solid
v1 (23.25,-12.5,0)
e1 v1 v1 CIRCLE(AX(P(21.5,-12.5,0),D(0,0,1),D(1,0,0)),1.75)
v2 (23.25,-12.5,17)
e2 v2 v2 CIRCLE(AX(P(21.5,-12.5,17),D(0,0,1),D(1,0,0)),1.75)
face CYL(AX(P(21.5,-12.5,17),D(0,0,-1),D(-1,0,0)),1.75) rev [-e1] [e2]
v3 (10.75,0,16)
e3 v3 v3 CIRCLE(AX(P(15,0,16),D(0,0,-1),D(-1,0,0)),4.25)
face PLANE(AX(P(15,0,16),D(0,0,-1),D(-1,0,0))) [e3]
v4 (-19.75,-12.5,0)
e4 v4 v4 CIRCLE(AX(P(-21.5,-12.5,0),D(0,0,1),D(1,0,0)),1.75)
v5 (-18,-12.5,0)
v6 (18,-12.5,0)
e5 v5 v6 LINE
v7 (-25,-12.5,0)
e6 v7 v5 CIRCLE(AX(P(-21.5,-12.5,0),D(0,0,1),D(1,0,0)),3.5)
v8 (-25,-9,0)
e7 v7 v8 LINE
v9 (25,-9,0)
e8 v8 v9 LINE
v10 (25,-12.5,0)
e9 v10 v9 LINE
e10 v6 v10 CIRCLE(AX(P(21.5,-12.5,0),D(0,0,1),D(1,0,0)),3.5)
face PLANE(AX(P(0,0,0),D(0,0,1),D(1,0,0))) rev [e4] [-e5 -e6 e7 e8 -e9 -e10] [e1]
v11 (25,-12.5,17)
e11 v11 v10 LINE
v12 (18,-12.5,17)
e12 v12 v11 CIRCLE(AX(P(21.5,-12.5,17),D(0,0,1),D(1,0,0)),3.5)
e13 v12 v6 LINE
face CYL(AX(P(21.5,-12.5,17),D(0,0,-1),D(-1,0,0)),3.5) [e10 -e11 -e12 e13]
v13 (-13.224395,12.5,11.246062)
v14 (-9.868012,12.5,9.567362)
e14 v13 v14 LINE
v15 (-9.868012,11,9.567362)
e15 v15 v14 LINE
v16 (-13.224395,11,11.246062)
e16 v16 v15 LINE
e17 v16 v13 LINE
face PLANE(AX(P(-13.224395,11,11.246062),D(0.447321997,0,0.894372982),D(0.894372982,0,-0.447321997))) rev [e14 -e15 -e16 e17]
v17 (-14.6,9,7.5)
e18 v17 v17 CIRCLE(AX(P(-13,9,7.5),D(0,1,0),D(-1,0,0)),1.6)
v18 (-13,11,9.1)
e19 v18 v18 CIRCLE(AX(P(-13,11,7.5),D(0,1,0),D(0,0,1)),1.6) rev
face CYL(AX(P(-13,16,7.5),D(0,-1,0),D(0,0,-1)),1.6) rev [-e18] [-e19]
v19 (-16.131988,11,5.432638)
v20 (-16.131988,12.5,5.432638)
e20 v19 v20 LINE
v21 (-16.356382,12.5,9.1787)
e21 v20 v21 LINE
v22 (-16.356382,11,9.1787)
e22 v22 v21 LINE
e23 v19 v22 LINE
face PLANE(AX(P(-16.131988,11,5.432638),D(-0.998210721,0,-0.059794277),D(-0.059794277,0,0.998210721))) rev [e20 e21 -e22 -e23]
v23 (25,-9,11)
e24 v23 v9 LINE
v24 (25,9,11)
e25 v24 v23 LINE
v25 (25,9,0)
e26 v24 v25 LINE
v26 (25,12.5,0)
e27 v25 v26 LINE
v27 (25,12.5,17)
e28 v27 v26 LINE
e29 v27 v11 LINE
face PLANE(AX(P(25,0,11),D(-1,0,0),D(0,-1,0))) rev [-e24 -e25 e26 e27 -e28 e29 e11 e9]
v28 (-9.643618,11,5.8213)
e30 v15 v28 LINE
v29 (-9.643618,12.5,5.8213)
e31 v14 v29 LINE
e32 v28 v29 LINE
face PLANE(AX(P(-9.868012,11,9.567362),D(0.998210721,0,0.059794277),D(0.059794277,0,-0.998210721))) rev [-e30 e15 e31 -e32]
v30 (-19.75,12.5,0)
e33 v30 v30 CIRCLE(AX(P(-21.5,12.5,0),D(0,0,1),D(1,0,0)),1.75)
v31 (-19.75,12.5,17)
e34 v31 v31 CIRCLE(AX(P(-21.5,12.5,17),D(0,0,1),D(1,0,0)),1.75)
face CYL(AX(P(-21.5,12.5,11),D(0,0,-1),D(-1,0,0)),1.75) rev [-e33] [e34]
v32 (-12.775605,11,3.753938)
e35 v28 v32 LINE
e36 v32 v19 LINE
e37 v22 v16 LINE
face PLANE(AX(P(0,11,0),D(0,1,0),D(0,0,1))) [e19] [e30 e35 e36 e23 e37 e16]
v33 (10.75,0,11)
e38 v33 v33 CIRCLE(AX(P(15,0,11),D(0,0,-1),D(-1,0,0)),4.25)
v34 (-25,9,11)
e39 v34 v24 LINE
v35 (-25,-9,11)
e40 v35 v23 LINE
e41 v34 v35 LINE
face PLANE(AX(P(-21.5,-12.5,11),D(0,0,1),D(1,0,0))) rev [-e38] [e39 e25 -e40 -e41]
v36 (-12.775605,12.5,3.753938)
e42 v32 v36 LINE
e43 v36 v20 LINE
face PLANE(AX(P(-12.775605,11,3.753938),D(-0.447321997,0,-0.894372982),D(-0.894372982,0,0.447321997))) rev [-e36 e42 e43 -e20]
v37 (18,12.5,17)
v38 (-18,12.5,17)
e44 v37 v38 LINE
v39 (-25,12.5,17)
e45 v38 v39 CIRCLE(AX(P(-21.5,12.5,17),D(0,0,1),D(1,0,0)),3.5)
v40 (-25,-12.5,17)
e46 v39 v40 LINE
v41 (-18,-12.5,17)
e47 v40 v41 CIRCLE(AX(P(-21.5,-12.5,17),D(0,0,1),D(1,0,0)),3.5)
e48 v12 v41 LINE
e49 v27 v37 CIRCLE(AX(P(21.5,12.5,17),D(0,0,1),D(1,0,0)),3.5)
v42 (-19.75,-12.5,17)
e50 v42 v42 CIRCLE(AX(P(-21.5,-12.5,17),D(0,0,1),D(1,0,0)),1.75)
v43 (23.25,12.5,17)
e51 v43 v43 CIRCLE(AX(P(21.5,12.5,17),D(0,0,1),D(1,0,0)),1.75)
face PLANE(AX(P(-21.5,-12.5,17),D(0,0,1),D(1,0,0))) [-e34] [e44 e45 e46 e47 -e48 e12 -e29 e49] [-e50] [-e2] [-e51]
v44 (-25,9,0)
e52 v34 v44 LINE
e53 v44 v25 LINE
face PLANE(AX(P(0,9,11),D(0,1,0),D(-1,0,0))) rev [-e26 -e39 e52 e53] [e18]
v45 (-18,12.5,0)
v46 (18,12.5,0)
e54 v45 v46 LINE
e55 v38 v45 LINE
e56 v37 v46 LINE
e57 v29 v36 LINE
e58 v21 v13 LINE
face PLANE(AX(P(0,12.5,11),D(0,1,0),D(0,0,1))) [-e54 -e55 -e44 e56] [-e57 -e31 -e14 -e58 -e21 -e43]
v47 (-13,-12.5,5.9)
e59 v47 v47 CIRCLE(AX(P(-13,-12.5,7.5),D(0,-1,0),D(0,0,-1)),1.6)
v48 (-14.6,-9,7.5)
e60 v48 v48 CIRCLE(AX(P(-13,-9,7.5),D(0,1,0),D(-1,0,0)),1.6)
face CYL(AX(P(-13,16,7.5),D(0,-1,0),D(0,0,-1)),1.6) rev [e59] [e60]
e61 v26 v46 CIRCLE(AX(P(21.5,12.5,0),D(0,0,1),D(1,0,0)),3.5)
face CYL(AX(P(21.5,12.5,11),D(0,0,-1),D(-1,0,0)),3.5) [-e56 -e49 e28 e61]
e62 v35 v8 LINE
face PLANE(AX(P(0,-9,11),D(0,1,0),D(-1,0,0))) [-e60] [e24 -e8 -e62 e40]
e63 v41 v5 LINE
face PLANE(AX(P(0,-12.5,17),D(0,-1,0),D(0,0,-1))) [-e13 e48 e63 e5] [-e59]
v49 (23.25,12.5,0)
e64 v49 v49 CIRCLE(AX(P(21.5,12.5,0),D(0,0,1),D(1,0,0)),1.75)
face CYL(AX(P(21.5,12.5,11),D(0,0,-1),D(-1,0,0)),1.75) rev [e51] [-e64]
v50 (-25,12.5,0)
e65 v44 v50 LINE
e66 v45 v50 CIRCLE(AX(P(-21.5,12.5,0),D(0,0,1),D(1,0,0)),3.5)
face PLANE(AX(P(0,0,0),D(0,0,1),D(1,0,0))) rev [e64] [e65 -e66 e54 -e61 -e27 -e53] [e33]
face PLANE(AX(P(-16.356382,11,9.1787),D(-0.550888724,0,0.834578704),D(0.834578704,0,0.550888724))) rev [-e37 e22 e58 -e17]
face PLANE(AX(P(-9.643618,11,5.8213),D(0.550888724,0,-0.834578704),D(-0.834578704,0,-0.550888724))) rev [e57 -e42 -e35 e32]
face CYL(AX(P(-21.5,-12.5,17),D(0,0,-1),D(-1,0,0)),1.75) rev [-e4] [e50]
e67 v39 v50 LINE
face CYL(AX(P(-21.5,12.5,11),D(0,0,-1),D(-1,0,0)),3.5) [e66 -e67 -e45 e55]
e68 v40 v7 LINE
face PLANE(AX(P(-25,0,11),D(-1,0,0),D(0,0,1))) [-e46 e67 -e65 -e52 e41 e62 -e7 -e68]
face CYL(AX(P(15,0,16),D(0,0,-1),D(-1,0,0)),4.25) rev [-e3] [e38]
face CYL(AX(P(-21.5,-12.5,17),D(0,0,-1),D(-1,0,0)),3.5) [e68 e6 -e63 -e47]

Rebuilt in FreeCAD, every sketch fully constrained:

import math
import FreeCAD as App
import Part
import Sketcher

V = App.Vector
Q = App.Units.Quantity


def add_polygon(sketch, points):
    """Adds a closed chain of lines whose ends are joined by coincident constraints."""
    first, n = sketch.GeometryCount, len(points)
    for a, b in zip(points, points[1:] + points[:1]):
        sketch.addGeometry(Part.LineSegment(App.Vector(*a, 0), App.Vector(*b, 0)), False)
    for i in range(n):
        sketch.addConstraint(Sketcher.Constraint("Coincident", first + i, 2, first + (i + 1) % n, 1))

doc = App.newDocument("Part")
params = doc.addObject("Spreadsheet::Sheet", "Params")
for row, (alias, value) in enumerate([
    ("sketch1_diameter", "3.5 mm"),
    ("sketch1_radius", "3.5 mm"),
    ("sketch1_width", "36 mm"),
    ("sketch1_height", "3.5 mm"),
    ("pad1_length", "11 mm"),
    ("sketch2_diameter", "3.5 mm"),
    ("sketch2_radius", "3.5 mm"),
    ("sketch2_width", "50 mm"),
    ("sketch2_height", "3.5 mm"),
    ("pad2_length", "11 mm"),
    ("sketch3_diameter", "3.5 mm"),
    ("sketch3_radius", "3.5 mm"),
    ("sketch3_width", "36 mm"),
    ("sketch3_height", "25 mm"),
    ("pad3_length", "6 mm"),
    ("sketch4_diameter", "8.5 mm"),
    ("pocket1_length", "5 mm"),
    ("sketch5_diameter", "3.2 mm"),
    ("pocket3_length", "1.5 mm"),
], start=1):
    params.set(f"A{row}", alias)
    params.set(f"B{row}", "=" + value)
    params.setAlias(f"B{row}", alias)

body = doc.addObject("PartDesign::Body", "Body")

# Sketch on XY plane
sketch1 = body.newObject("Sketcher::SketchObject", "Sketch")
sketch1.AttachmentSupport = (doc.getObject("XY_Plane"), [""])
sketch1.MapMode = "FlatFace"
sketch1.addGeometry([
    Part.LineSegment(V(18, 12.5, 0), V(-18, 12.5, 0)),  # 0
    Part.ArcOfCircle(Part.Circle(V(-21.5, 12.5, 0), V(0, 0, 1), 3.5), math.radians(0), math.radians(180)),  # 1
    Part.LineSegment(V(-25, 12.5, 0), V(-25, 9, 0)),  # 2
    Part.LineSegment(V(-25, 9, 0), V(25, 9, 0)),  # 3
    Part.LineSegment(V(25, 9, 0), V(25, 12.5, 0)),  # 4
    Part.ArcOfCircle(Part.Circle(V(21.5, 12.5, 0), V(0, 0, 1), 3.5), math.radians(0), math.radians(180)),  # 5
    Part.Circle(V(-21.5, 12.5, 0), V(0, 0, 1), 1.8),  # 6
    Part.Circle(V(21.5, 12.5, 0), V(0, 0, 1), 1.8),  # 7
], False)
sketch1.addConstraint([
    Sketcher.Constraint("Coincident", 0, 2, 1, 1),
    Sketcher.Constraint("Tangent", 1, 2, 2, 1),
    Sketcher.Constraint("Coincident", 2, 2, 3, 1),
    Sketcher.Constraint("Coincident", 3, 2, 4, 1),
    Sketcher.Constraint("Tangent", 4, 2, 5, 1),
    Sketcher.Constraint("Coincident", 5, 2, 0, 1),
    Sketcher.Constraint("Horizontal", 0),
    Sketcher.Constraint("Vertical", 2),
    Sketcher.Constraint("Horizontal", 3),
    Sketcher.Constraint("Vertical", 4),
    Sketcher.Constraint("Coincident", 6, 3, 1, 3),
    Sketcher.Constraint("Coincident", 7, 3, 5, 3),
    Sketcher.Constraint("Equal", 1, 5),
    Sketcher.Constraint("Equal", 6, 7),
    Sketcher.Constraint("Symmetric", 1, 3, 5, 3, -2),
    Sketcher.Constraint("Horizontal", 7, 3, 0, 2),
    Sketcher.Constraint("Diameter", 6, Q("3.5 mm")),
    Sketcher.Constraint("Radius", 1, Q("3.5 mm")),
    Sketcher.Constraint("DistanceX", 0, 2, 0, 1, Q("36 mm")),
    Sketcher.Constraint("DistanceY", 2, 2, 2, 1, Q("3.5 mm")),
    Sketcher.Constraint("DistanceY", -1, 1, 2, 2, Q("9 mm")),
])
sketch1.setExpression("Constraints[16]", "Params.sketch1_diameter")
sketch1.setExpression("Constraints[17]", "Params.sketch1_radius")
sketch1.setExpression("Constraints[18]", "Params.sketch1_width")
sketch1.setExpression("Constraints[19]", "Params.sketch1_height")
pad1 = body.newObject("PartDesign::Pad", "Pad")
pad1.Profile = sketch1
pad1.setExpression("Length", "Params.pad1_length")
body2 = doc.addObject("PartDesign::Body", "Body001")

# Sketch on XY plane
sketch2 = body2.newObject("Sketcher::SketchObject", "Sketch001")
sketch2.AttachmentSupport = (doc.getObject("XY_Plane001"), [""])
sketch2.MapMode = "FlatFace"
sketch2.addGeometry([
    Part.LineSegment(V(25, -9, 0), V(-25, -9, 0)),  # 0
    Part.LineSegment(V(-25, -9, 0), V(-25, -12.5, 0)),  # 1
    Part.ArcOfCircle(Part.Circle(V(-21.5, -12.5, 0), V(0, 0, 1), 3.5), math.radians(180), math.radians(360)),  # 2
    Part.LineSegment(V(-18, -12.5, 0), V(18, -12.5, 0)),  # 3
    Part.ArcOfCircle(Part.Circle(V(21.5, -12.5, 0), V(0, 0, 1), 3.5), math.radians(180), math.radians(360)),  # 4
    Part.LineSegment(V(25, -12.5, 0), V(25, -9, 0)),  # 5
    Part.Circle(V(-21.5, -12.5, 0), V(0, 0, 1), 1.8),  # 6
    Part.Circle(V(21.5, -12.5, 0), V(0, 0, 1), 1.8),  # 7
], False)
sketch2.addConstraint([
    Sketcher.Constraint("Coincident", 0, 2, 1, 1),
    Sketcher.Constraint("Tangent", 1, 2, 2, 1),
    Sketcher.Constraint("Coincident", 2, 2, 3, 1),
    Sketcher.Constraint("Coincident", 3, 2, 4, 1),
    Sketcher.Constraint("Tangent", 4, 2, 5, 1),
    Sketcher.Constraint("Coincident", 5, 2, 0, 1),
    Sketcher.Constraint("Horizontal", 0),
    Sketcher.Constraint("Vertical", 1),
    Sketcher.Constraint("Horizontal", 3),
    Sketcher.Constraint("Vertical", 5),
    Sketcher.Constraint("Coincident", 6, 3, 2, 3),
    Sketcher.Constraint("Coincident", 7, 3, 4, 3),
    Sketcher.Constraint("Equal", 2, 4),
    Sketcher.Constraint("Equal", 6, 7),
    Sketcher.Constraint("Symmetric", 2, 3, 4, 3, -2),
    Sketcher.Constraint("Horizontal", 1, 2, 2, 2),
    Sketcher.Constraint("Diameter", 6, Q("3.5 mm")),
    Sketcher.Constraint("Radius", 2, Q("3.5 mm")),
    Sketcher.Constraint("DistanceX", 0, 2, 0, 1, Q("50 mm")),
    Sketcher.Constraint("DistanceY", 1, 2, 1, 1, Q("3.5 mm")),
    Sketcher.Constraint("DistanceY", 0, 2, -1, 1, Q("9 mm")),
])
sketch2.setExpression("Constraints[16]", "Params.sketch2_diameter")
sketch2.setExpression("Constraints[17]", "Params.sketch2_radius")
sketch2.setExpression("Constraints[18]", "Params.sketch2_width")
sketch2.setExpression("Constraints[19]", "Params.sketch2_height")
pad2 = body2.newObject("PartDesign::Pad", "Pad001")
pad2.Profile = sketch2
pad2.setExpression("Length", "Params.pad2_length")
body.AllowCompound = True
doc.recompute()

boolean = body.newObject("PartDesign::Boolean", "Boolean")
boolean.Type = "Fuse"
boolean.addObjects([body2])

# Sketch on XY plane
sketch3 = body.newObject("Sketcher::SketchObject", "Sketch002")
sketch3.AttachmentSupport = (doc.getObject("XY_Plane"), [""])
sketch3.MapMode = "FlatFace"
sketch3.AttachmentOffset = App.Placement(V(0, 0, 11), App.Rotation())
sketch3.addGeometry([
    Part.ArcOfCircle(Part.Circle(V(-21.5, -12.5, 0), V(0, 0, 1), 3.5), math.radians(180), math.radians(360)),  # 0
    Part.LineSegment(V(-18, -12.5, 0), V(18, -12.5, 0)),  # 1
    Part.ArcOfCircle(Part.Circle(V(21.5, -12.5, 0), V(0, 0, 1), 3.5), math.radians(180), math.radians(360)),  # 2
    Part.LineSegment(V(25, -12.5, 0), V(25, 12.5, 0)),  # 3
    Part.ArcOfCircle(Part.Circle(V(21.5, 12.5, 0), V(0, 0, 1), 3.5), math.radians(0), math.radians(180)),  # 4
    Part.LineSegment(V(18, 12.5, 0), V(-18, 12.5, 0)),  # 5
    Part.ArcOfCircle(Part.Circle(V(-21.5, 12.5, 0), V(0, 0, 1), 3.5), math.radians(0), math.radians(180)),  # 6
    Part.LineSegment(V(-25, 12.5, 0), V(-25, -12.5, 0)),  # 7
    Part.Circle(V(21.5, -12.5, 0), V(0, 0, 1), 1.8),  # 8
    Part.Circle(V(-21.5, -12.5, 0), V(0, 0, 1), 1.8),  # 9
    Part.Circle(V(21.5, 12.5, 0), V(0, 0, 1), 1.8),  # 10
    Part.Circle(V(-21.5, 12.5, 0), V(0, 0, 1), 1.8),  # 11
], False)
sketch3.addConstraint([
    Sketcher.Constraint("Coincident", 0, 2, 1, 1),
    Sketcher.Constraint("Coincident", 1, 2, 2, 1),
    Sketcher.Constraint("Tangent", 2, 2, 3, 1),
    Sketcher.Constraint("Tangent", 3, 2, 4, 1),
    Sketcher.Constraint("Coincident", 4, 2, 5, 1),
    Sketcher.Constraint("Coincident", 5, 2, 6, 1),
    Sketcher.Constraint("Tangent", 6, 2, 7, 1),
    Sketcher.Constraint("Tangent", 7, 2, 0, 1),
    Sketcher.Constraint("Horizontal", 1),
    Sketcher.Constraint("Vertical", 3),
    Sketcher.Constraint("Horizontal", 5),
    Sketcher.Constraint("Vertical", 7),
    Sketcher.Constraint("Coincident", 8, 3, 2, 3),
    Sketcher.Constraint("Coincident", 9, 3, 0, 3),
    Sketcher.Constraint("Coincident", 10, 3, 4, 3),
    Sketcher.Constraint("Coincident", 11, 3, 6, 3),
    Sketcher.Constraint("Equal", 0, 2),
    Sketcher.Constraint("Equal", 2, 4),
    Sketcher.Constraint("Equal", 4, 6),
    Sketcher.Constraint("Equal", 8, 9),
    Sketcher.Constraint("Equal", 9, 10),
    Sketcher.Constraint("Equal", 10, 11),
    Sketcher.Constraint("Symmetric", 0, 3, 4, 3, -1, 1),
    Sketcher.Constraint("Horizontal", 0, 3, 2, 3),
    Sketcher.Constraint("Horizontal", 4, 3, 6, 3),
    Sketcher.Constraint("Horizontal", 9, 3, 0, 2),
    Sketcher.Constraint("Horizontal", 3, 2, 4, 2),
    Sketcher.Constraint("Diameter", 8, Q("3.5 mm")),
    Sketcher.Constraint("Radius", 0, Q("3.5 mm")),
    Sketcher.Constraint("DistanceX", 1, 1, 1, 2, Q("36 mm")),
    Sketcher.Constraint("DistanceY", 3, 1, 3, 2, Q("25 mm")),
])
sketch3.setExpression("Constraints[27]", "Params.sketch3_diameter")
sketch3.setExpression("Constraints[28]", "Params.sketch3_radius")
sketch3.setExpression("Constraints[29]", "Params.sketch3_width")
sketch3.setExpression("Constraints[30]", "Params.sketch3_height")
pad3 = body.newObject("PartDesign::Pad", "Pad002")
pad3.Profile = sketch3
pad3.setExpression("Length", "Params.pad3_length")

# Sketch on XY plane
sketch4 = body.newObject("Sketcher::SketchObject", "Sketch003")
sketch4.AttachmentSupport = (doc.getObject("XY_Plane"), [""])
sketch4.MapMode = "FlatFace"
sketch4.AttachmentOffset = App.Placement(V(0, 0, 11), App.Rotation())
sketch4.addGeometry(Part.Circle(V(15, 0, 0), V(0, 0, 1), 4.2), False)
sketch4.addConstraint([
    Sketcher.Constraint("PointOnObject", 0, 3, -1),
    Sketcher.Constraint("Diameter", 0, Q("8.5 mm")),
    Sketcher.Constraint("DistanceX", -1, 1, 0, 3, Q("15 mm")),
])
sketch4.setExpression("Constraints[1]", "Params.sketch4_diameter")
pocket1 = body.newObject("PartDesign::Pocket", "Pocket")
pocket1.Profile = sketch4
pocket1.setExpression("Length", "Params.pocket1_length")
pocket1.Reversed = True

# Sketch on XZ plane
sketch5 = body.newObject("Sketcher::SketchObject", "Sketch004")
sketch5.AttachmentSupport = (doc.getObject("XZ_Plane"), [""])
sketch5.MapMode = "FlatFace"
sketch5.AttachmentOffset = App.Placement(V(0, 0, 12.5), App.Rotation())
sketch5.addGeometry(Part.Circle(V(-13, 7.5, 0), V(0, 0, 1), 1.6), False)
sketch5.addConstraint([
    Sketcher.Constraint("Diameter", 0, Q("3.2 mm")),
    Sketcher.Constraint("DistanceX", 0, 3, -1, 1, Q("13 mm")),
    Sketcher.Constraint("DistanceY", -1, 1, 0, 3, Q("7.5 mm")),
])
sketch5.setExpression("Constraints[0]", "Params.sketch5_diameter")
pocket2 = body.newObject("PartDesign::Pocket", "Pocket001")
pocket2.Profile = sketch5
pocket2.Type = "ThroughAll"

# Sketch on XZ plane
sketch6 = body.newObject("Sketcher::SketchObject", "Sketch005")
sketch6.AttachmentSupport = (doc.getObject("XZ_Plane"), [""])
sketch6.MapMode = "FlatFace"
sketch6.AttachmentOffset = App.Placement(V(0, 0, -12.5), App.Rotation())
add_polygon(sketch6, [(-9.9, 9.6), (-9.6, 5.8), (-12.8, 3.8), (-16.1, 5.4), (-16.4, 9.2), (-13.2, 11.2)])  # lines 0-5
sketch6.addConstraint([
    Sketcher.Constraint("Parallel", 0, 3),
    Sketcher.Constraint("Parallel", 1, 4),
    Sketcher.Constraint("Parallel", 2, 5),
    Sketcher.Constraint("Equal", 0, 1),
    Sketcher.Constraint("Equal", 1, 2),
    Sketcher.Constraint("Equal", 2, 3),
    Sketcher.Constraint("DistanceY", -1, 1, 0, 2, Q("5.8213 mm")),
    Sketcher.Constraint("DistanceY", -1, 1, 3, 2, Q("9.1787 mm")),
    Sketcher.Constraint("DistanceY", 1, 2, 2, 2, Q("1.6787 mm")),
    Sketcher.Constraint("DistanceY", -1, 1, 1, 2, Q("3.753938 mm")),
    Sketcher.Constraint("DistanceX", 2, 2, 0, 2, Q("6.48837 mm")),
    Sketcher.Constraint("DistanceX", 0, 2, -1, 1, Q("9.643618 mm")),
])
pocket3 = body.newObject("PartDesign::Pocket", "Pocket002")
pocket3.Profile = sketch6
pocket3.setExpression("Length", "Params.pocket3_length")
pocket3.Reversed = True

doc.recompute()
